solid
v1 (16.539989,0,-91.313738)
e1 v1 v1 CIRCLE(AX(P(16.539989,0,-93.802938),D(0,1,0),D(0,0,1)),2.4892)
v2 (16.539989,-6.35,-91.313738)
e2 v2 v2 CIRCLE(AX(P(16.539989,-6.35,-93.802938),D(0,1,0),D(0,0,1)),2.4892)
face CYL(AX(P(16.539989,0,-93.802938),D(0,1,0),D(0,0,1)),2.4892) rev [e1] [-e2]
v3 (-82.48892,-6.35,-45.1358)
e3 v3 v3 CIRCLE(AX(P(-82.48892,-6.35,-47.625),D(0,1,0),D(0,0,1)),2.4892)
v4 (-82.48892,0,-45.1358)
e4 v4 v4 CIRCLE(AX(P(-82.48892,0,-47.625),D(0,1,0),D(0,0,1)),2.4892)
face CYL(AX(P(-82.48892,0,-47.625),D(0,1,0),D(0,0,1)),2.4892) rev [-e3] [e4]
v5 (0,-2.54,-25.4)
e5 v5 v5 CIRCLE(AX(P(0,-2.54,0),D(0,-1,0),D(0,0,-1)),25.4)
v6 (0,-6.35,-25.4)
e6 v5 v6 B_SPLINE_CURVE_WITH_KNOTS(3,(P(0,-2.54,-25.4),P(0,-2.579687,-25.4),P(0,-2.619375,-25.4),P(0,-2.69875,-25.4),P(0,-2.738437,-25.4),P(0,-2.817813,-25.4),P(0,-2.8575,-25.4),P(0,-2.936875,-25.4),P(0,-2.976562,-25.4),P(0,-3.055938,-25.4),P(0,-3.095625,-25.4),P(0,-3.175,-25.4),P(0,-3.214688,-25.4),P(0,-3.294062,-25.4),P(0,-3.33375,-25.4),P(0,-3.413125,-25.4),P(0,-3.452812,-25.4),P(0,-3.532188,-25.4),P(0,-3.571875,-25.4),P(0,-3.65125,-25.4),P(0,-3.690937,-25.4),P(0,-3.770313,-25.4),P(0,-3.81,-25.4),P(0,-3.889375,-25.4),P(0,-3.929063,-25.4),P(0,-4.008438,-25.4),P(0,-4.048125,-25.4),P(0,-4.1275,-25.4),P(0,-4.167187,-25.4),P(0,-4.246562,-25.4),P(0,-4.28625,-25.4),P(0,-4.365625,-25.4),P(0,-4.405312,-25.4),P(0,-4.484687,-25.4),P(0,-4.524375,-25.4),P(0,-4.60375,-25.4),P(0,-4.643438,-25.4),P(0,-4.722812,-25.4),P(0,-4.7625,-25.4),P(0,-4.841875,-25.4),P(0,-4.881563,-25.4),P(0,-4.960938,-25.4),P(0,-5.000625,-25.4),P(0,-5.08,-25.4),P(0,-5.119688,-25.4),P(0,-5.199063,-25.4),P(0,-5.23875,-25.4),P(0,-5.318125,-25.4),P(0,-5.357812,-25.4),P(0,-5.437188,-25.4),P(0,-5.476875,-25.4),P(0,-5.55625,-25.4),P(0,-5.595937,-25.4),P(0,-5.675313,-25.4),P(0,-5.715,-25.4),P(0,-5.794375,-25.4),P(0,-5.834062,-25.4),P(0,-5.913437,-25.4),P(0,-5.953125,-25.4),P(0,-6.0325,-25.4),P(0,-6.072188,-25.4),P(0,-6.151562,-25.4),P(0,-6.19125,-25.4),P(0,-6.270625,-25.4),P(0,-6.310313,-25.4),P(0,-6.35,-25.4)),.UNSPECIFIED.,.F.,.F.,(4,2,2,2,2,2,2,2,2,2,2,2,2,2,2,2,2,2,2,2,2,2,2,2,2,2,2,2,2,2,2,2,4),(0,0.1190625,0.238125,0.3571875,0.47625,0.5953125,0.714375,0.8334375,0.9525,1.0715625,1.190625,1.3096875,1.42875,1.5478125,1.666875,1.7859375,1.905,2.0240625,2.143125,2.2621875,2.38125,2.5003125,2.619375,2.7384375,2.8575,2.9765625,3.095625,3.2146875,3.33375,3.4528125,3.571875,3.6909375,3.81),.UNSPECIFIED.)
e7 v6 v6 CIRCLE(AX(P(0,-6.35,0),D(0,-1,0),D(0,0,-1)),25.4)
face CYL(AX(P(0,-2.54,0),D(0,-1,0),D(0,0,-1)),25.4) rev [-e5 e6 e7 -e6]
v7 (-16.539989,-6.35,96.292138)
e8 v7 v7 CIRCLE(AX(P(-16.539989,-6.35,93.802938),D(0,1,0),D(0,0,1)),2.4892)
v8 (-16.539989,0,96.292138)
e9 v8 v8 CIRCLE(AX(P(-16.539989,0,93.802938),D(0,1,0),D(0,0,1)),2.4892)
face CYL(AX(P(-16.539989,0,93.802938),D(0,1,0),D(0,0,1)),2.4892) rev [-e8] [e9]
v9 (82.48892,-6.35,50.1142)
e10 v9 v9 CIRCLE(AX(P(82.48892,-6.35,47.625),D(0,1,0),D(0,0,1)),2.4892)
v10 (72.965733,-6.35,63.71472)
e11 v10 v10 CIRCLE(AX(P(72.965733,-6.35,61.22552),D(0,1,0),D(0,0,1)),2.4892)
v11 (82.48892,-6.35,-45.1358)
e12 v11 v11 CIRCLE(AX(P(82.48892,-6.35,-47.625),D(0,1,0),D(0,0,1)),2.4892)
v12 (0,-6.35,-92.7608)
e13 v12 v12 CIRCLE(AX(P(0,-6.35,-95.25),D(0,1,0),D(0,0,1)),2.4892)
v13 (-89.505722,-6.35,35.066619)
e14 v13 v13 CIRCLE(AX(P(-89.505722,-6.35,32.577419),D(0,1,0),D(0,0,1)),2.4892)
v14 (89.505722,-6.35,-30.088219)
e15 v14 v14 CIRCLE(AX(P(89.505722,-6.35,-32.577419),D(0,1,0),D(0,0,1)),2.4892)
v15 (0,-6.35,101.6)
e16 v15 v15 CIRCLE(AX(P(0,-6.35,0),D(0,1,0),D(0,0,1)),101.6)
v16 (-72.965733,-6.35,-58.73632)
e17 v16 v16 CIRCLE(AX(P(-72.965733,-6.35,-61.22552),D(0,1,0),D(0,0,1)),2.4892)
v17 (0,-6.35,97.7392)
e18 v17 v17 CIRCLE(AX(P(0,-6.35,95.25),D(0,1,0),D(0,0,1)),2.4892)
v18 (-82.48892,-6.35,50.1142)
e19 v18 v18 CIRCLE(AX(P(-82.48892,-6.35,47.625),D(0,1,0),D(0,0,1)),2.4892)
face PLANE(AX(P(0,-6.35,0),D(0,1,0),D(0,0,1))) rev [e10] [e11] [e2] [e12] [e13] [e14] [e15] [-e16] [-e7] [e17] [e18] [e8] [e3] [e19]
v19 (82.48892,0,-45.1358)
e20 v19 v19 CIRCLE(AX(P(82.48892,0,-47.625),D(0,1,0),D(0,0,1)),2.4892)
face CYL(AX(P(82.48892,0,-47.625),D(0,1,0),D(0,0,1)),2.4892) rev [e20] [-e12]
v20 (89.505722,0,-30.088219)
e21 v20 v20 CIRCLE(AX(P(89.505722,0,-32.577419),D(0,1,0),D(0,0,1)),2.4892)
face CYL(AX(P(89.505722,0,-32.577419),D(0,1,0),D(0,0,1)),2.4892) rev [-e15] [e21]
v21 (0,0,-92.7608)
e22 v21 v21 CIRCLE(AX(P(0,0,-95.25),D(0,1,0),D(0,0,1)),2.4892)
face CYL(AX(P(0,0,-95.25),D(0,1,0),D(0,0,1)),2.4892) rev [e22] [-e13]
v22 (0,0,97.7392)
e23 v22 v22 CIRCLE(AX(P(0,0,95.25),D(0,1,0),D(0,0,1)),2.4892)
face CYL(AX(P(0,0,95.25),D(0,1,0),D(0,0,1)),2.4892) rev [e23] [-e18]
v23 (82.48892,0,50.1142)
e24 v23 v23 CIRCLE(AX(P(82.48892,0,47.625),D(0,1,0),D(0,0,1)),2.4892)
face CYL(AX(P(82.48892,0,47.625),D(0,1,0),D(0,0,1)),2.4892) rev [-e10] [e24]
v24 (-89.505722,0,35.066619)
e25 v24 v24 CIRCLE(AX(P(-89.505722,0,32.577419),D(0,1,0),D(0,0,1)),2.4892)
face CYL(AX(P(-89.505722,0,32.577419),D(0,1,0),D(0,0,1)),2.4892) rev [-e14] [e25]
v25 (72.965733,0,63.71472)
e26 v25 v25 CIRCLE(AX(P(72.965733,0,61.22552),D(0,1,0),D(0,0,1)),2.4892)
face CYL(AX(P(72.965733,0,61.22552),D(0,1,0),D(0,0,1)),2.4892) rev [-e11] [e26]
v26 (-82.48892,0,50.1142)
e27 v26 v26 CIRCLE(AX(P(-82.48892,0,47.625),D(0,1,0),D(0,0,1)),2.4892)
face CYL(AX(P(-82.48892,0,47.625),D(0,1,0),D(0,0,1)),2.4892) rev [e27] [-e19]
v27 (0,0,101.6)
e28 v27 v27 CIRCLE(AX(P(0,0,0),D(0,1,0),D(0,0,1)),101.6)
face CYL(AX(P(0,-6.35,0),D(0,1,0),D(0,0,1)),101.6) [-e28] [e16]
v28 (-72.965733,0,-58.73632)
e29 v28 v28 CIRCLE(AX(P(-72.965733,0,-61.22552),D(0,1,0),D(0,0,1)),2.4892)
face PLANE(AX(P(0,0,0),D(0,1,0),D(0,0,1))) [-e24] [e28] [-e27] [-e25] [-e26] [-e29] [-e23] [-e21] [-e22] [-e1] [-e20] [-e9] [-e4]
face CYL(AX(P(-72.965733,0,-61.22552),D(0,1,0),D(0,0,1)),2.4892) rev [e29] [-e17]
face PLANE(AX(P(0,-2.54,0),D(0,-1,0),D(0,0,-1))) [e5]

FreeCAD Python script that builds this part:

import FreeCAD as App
import Part
import Sketcher

V = App.Vector
Q = App.Units.Quantity

doc = App.newDocument("Part")
params = doc.addObject("Spreadsheet::Sheet", "Params")
for row, (alias, value) in enumerate([
    ("sketch1_diameter", "8 in"),
    ("pad1_length", "0.25 in"),
    ("sketch2_diameter", "0.196 in"),
    ("hole_diameter", "0.196 in"),
    ("sketch3_diameter", "2 in"),
    ("pocket1_length", "0.15 in"),
], start=1):
    params.set(f"A{row}", alias)
    params.set(f"B{row}", "=" + value)
    params.setAlias(f"B{row}", alias)

body = doc.addObject("PartDesign::Body", "Body")

# Sketch on XZ plane
sketch1 = doc.addObject("Sketcher::SketchObject", "Sketch")
body.addObject(sketch1)
sketch1.AttachmentSupport = (doc.XZ_Plane, [""])
sketch1.MapMode = "FlatFace"
sketch1.addGeometry(Part.Circle(V(0, 0, 0), V(0, 0, 1), 102), False)
sketch1.addConstraint([
    Sketcher.Constraint("Coincident", 0, 3, -1, 1),
    Sketcher.Constraint("Diameter", 0, Q("8 in")),
])
sketch1.setExpression("Constraints[1]", "Params.sketch1_diameter")
pad1 = doc.addObject("PartDesign::Pad", "Pad")
body.addObject(pad1)
pad1.Profile = sketch1
pad1.setExpression("Length", "Params.pad1_length")

# Sketch on XZ plane
sketch2 = doc.addObject("Sketcher::SketchObject", "Sketch001")
body.addObject(sketch2)
sketch2.AttachmentSupport = (doc.XZ_Plane, [""])
sketch2.MapMode = "FlatFace"
sketch2.addGeometry([
    Part.Circle(V(0, -95.2, 0), V(0, 0, 1), 2.5),  # 0
    Part.Circle(V(82.5, -47.6, 0), V(0, 0, 1), 2.5),  # 1
    Part.Circle(V(82.5, 47.6, 0), V(0, 0, 1), 2.5),  # 2
    Part.Circle(V(0, 95.2, 0), V(0, 0, 1), 2.5),  # 3
    Part.Circle(V(-82.5, 47.6, 0), V(0, 0, 1), 2.5),  # 4
    Part.Circle(V(-82.5, -47.6, 0), V(0, 0, 1), 2.5),  # 5
    Part.Circle(V(-73, -61.2, 0), V(0, 0, 1), 2.5),  # 6
    Part.Circle(V(16.5, -93.8, 0), V(0, 0, 1), 2.5),  # 7
    Part.Circle(V(89.5, -32.6, 0), V(0, 0, 1), 2.5),  # 8
    Part.Circle(V(73, 61.2, 0), V(0, 0, 1), 2.5),  # 9
    Part.Circle(V(-16.5, 93.8, 0), V(0, 0, 1), 2.5),  # 10
    Part.Circle(V(-89.5, 32.6, 0), V(0, 0, 1), 2.5),  # 11
], False)
sketch2.addConstraint([
    Sketcher.Constraint("Equal", 0, 1),
    Sketcher.Constraint("Equal", 1, 2),
    Sketcher.Constraint("Equal", 2, 3),
    Sketcher.Constraint("Equal", 3, 4),
    Sketcher.Constraint("Equal", 4, 5),
    Sketcher.Constraint("Equal", 5, 6),
    Sketcher.Constraint("Equal", 6, 7),
    Sketcher.Constraint("Equal", 7, 8),
    Sketcher.Constraint("Equal", 8, 9),
    Sketcher.Constraint("Equal", 9, 10),
    Sketcher.Constraint("Equal", 10, 11),
    Sketcher.Constraint("Symmetric", 0, 3, 3, 3, -1, 1),
    Sketcher.Constraint("Symmetric", 1, 3, 4, 3, -1, 1),
    Sketcher.Constraint("Symmetric", 2, 3, 5, 3, -1, 1),
    Sketcher.Constraint("Symmetric", 6, 3, 9, 3, -1, 1),
    Sketcher.Constraint("Symmetric", 7, 3, 10, 3, -1, 1),
    Sketcher.Constraint("Symmetric", 8, 3, 11, 3, -1, 1),
    Sketcher.Constraint("Symmetric", 2, 3, 4, 3, -2),
    Sketcher.Constraint("PointOnObject", 0, 3, -2),
    Sketcher.Constraint("Diameter", 0, Q("0.196 in")),
    Sketcher.Constraint("DistanceY", 0, 3, 3, 3, Q("7.5 in")),
    Sketcher.Constraint("DistanceY", 1, 3, 2, 3, Q("3.75 in")),
    Sketcher.Constraint("DistanceX", -1, 1, 1, 3, 82.48892),
    Sketcher.Constraint("DistanceY", 6, 3, -1, 1, 61.22552),
    Sketcher.Constraint("DistanceX", -1, 1, 7, 3, 16.539989),
    Sketcher.Constraint("DistanceY", 7, 3, -1, 1, 93.802938),
    Sketcher.Constraint("DistanceY", 8, 3, -1, 1, 32.577419),
    Sketcher.Constraint("DistanceX", 9, 3, 8, 3, 16.539989),
    Sketcher.Constraint("DistanceX", 6, 3, -1, 1, 72.965733),
])
sketch2.setExpression("Constraints[19]", "Params.sketch2_diameter")
doc.recompute()
hole = doc.addObject("PartDesign::Hole", "Hole")
body.addObject(hole)
hole.Profile = sketch2
hole.ThreadType = "None"
hole.setExpression("Diameter", "Params.hole_diameter")
hole.DepthType = "ThroughAll"
hole.Reversed = True

# Sketch on XZ plane
sketch3 = doc.addObject("Sketcher::SketchObject", "Sketch002")
body.addObject(sketch3)
sketch3.AttachmentSupport = (doc.XZ_Plane, [""])
sketch3.MapMode = "FlatFace"
sketch3.AttachmentOffset = App.Placement(V(0, 0, 0.25 * 25.4), App.Rotation())
sketch3.addGeometry(Part.Circle(V(0, 0, 0), V(0, 0, 1), 25), False)
sketch3.addConstraint([
    Sketcher.Constraint("Coincident", 0, 3, -1, 1),
    Sketcher.Constraint("Diameter", 0, Q("2 in")),
])
sketch3.setExpression("Constraints[1]", "Params.sketch3_diameter")
pocket1 = doc.addObject("PartDesign::Pocket", "Pocket")
body.addObject(pocket1)
pocket1.Profile = sketch3
pocket1.setExpression("Length", "Params.pocket1_length")

doc.recompute()
